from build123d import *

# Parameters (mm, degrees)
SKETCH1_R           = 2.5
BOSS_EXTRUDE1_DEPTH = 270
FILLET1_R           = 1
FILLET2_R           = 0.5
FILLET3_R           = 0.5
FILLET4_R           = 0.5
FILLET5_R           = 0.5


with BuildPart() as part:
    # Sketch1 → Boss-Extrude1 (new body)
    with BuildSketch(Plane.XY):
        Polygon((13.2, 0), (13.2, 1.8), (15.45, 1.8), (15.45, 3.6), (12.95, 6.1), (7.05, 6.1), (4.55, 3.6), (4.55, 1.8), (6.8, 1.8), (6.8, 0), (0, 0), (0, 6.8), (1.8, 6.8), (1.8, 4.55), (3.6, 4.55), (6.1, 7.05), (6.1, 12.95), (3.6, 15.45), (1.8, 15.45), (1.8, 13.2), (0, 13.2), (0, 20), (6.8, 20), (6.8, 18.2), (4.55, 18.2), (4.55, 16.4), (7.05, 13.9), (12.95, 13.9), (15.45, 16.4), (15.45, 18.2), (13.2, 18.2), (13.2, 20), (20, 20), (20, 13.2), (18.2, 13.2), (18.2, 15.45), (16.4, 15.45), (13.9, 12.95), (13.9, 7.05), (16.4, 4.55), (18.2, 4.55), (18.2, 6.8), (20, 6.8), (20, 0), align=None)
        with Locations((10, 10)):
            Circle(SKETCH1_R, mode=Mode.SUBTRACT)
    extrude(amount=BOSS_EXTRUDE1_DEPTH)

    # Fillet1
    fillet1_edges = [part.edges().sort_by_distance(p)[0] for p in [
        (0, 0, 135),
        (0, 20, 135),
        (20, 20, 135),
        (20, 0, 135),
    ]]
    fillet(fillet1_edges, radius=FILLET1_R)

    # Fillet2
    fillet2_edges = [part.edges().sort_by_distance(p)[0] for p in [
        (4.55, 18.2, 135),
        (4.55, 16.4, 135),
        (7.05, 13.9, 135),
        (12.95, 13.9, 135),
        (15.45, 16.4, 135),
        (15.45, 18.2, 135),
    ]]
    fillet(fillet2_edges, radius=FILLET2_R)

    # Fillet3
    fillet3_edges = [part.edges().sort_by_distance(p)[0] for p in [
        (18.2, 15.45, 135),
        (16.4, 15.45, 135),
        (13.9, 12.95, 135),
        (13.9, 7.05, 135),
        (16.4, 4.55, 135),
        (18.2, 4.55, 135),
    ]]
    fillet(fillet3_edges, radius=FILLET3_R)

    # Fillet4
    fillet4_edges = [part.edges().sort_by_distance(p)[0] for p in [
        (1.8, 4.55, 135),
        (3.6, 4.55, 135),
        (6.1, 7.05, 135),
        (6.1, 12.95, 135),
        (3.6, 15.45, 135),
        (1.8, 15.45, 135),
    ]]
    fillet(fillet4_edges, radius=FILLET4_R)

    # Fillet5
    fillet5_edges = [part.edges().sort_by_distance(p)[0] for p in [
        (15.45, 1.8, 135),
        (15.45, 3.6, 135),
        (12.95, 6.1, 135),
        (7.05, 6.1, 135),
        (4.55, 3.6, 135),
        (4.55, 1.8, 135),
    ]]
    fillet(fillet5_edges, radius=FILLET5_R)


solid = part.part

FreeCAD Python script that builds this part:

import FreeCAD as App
import Part
import Sketcher
from FreeCAD import Vector
Q = App.Units.Quantity


def edges_at(feature, points):
    """Names of the edges that pass closest to the given points."""
    edges = feature.Shape.Edges
    near = lambda p: min(range(len(edges)), key=lambda i: edges[i].distToShape(Part.Vertex(*p))[0])
    return sorted({f"Edge{near(p) + 1}" for p in points})

doc = App.newDocument("Part")
params = doc.addObject("Spreadsheet::Sheet", "Params")
for row, (alias, value) in enumerate([
    ("sketch1_diameter", "5 mm"),
    ("sketch1_width", "6.8 mm"),
    ("sketch1_width2", "1.8 mm"),
    ("sketch1_width3", "5.9 mm"),
    ("sketch1_width4", "2.25 mm"),
    ("pad1_length", "270 mm"),
    ("fillet_radius", "1 mm"),
    ("fillet2_radius", "0.5 mm"),
    ("fillet3_radius", "0.5 mm"),
    ("fillet4_radius", "0.5 mm"),
    ("fillet5_radius", "0.5 mm"),
], start=1):
    params.set(f"A{row}", alias)
    params.set(f"B{row}", "=" + value)
    params.setAlias(f"B{row}", alias)

body = doc.addObject("PartDesign::Body", "Body")

# Sketch on XY plane
sketch1 = body.newObject("Sketcher::SketchObject", "Sketch")
sketch1.AttachmentSupport = (doc.getObject("XY_Plane"), [""])
sketch1.MapMode = "FlatFace"
sketch1.addGeometry(Part.LineSegment(Vector(13.2, 1.8, 0), Vector(13.2, 0, 0)), False)
sketch1.addGeometry(Part.LineSegment(Vector(13.2, 0, 0), Vector(20, 0, 0)), False)
sketch1.addGeometry(Part.LineSegment(Vector(20, 0, 0), Vector(20, 6.8, 0)), False)
sketch1.addGeometry(Part.LineSegment(Vector(20, 6.8, 0), Vector(18.2, 6.8, 0)), False)
sketch1.addGeometry(Part.LineSegment(Vector(18.2, 6.8, 0), Vector(18.2, 4.55, 0)), False)
sketch1.addGeometry(Part.LineSegment(Vector(18.2, 4.55, 0), Vector(16.4, 4.55, 0)), False)
sketch1.addGeometry(Part.LineSegment(Vector(16.4, 4.55, 0), Vector(13.9, 7.05, 0)), False)
sketch1.addGeometry(Part.LineSegment(Vector(13.9, 7.05, 0), Vector(13.9, 12.95, 0)), False)
sketch1.addGeometry(Part.LineSegment(Vector(13.9, 12.95, 0), Vector(16.4, 15.45, 0)), False)
sketch1.addGeometry(Part.LineSegment(Vector(16.4, 15.45, 0), Vector(18.2, 15.45, 0)), False)
sketch1.addGeometry(Part.LineSegment(Vector(18.2, 15.45, 0), Vector(18.2, 13.2, 0)), False)
sketch1.addGeometry(Part.LineSegment(Vector(18.2, 13.2, 0), Vector(20, 13.2, 0)), False)
sketch1.addGeometry(Part.LineSegment(Vector(20, 13.2, 0), Vector(20, 20, 0)), False)
sketch1.addGeometry(Part.LineSegment(Vector(20, 20, 0), Vector(13.2, 20, 0)), False)
sketch1.addGeometry(Part.LineSegment(Vector(13.2, 20, 0), Vector(13.2, 18.2, 0)), False)
sketch1.addGeometry(Part.LineSegment(Vector(13.2, 18.2, 0), Vector(15.45, 18.2, 0)), False)
sketch1.addGeometry(Part.LineSegment(Vector(15.45, 18.2, 0), Vector(15.45, 16.4, 0)), False)
sketch1.addGeometry(Part.LineSegment(Vector(15.45, 16.4, 0), Vector(12.95, 13.9, 0)), False)
sketch1.addGeometry(Part.LineSegment(Vector(12.95, 13.9, 0), Vector(7.05, 13.9, 0)), False)
sketch1.addGeometry(Part.LineSegment(Vector(7.05, 13.9, 0), Vector(4.55, 16.4, 0)), False)
sketch1.addGeometry(Part.LineSegment(Vector(4.55, 16.4, 0), Vector(4.55, 18.2, 0)), False)
sketch1.addGeometry(Part.LineSegment(Vector(4.55, 18.2, 0), Vector(6.8, 18.2, 0)), False)
sketch1.addGeometry(Part.LineSegment(Vector(6.8, 18.2, 0), Vector(6.8, 20, 0)), False)
sketch1.addGeometry(Part.LineSegment(Vector(6.8, 20, 0), Vector(0, 20, 0)), False)
sketch1.addGeometry(Part.LineSegment(Vector(0, 20, 0), Vector(0, 13.2, 0)), False)
sketch1.addGeometry(Part.LineSegment(Vector(0, 13.2, 0), Vector(1.8, 13.2, 0)), False)
sketch1.addGeometry(Part.LineSegment(Vector(1.8, 13.2, 0), Vector(1.8, 15.45, 0)), False)
sketch1.addGeometry(Part.LineSegment(Vector(1.8, 15.45, 0), Vector(3.6, 15.45, 0)), False)
sketch1.addGeometry(Part.LineSegment(Vector(3.6, 15.45, 0), Vector(6.1, 12.95, 0)), False)
sketch1.addGeometry(Part.LineSegment(Vector(6.1, 12.95, 0), Vector(6.1, 7.05, 0)), False)
sketch1.addGeometry(Part.LineSegment(Vector(6.1, 7.05, 0), Vector(3.6, 4.55, 0)), False)
sketch1.addGeometry(Part.LineSegment(Vector(3.6, 4.55, 0), Vector(1.8, 4.55, 0)), False)
sketch1.addGeometry(Part.LineSegment(Vector(1.8, 4.55, 0), Vector(1.8, 6.8, 0)), False)
sketch1.addGeometry(Part.LineSegment(Vector(1.8, 6.8, 0), Vector(0, 6.8, 0)), False)
sketch1.addGeometry(Part.LineSegment(Vector(0, 6.8, 0), Vector(0, 0, 0)), False)
sketch1.addGeometry(Part.LineSegment(Vector(0, 0, 0), Vector(6.8, 0, 0)), False)
sketch1.addGeometry(Part.LineSegment(Vector(6.8, 0, 0), Vector(6.8, 1.8, 0)), False)
sketch1.addGeometry(Part.LineSegment(Vector(6.8, 1.8, 0), Vector(4.55, 1.8, 0)), False)
sketch1.addGeometry(Part.LineSegment(Vector(4.55, 1.8, 0), Vector(4.55, 3.6, 0)), False)
sketch1.addGeometry(Part.LineSegment(Vector(4.55, 3.6, 0), Vector(7.05, 6.1, 0)), False)
sketch1.addGeometry(Part.LineSegment(Vector(7.05, 6.1, 0), Vector(12.95, 6.1, 0)), False)
sketch1.addGeometry(Part.LineSegment(Vector(12.95, 6.1, 0), Vector(15.45, 3.6, 0)), False)
sketch1.addGeometry(Part.LineSegment(Vector(15.45, 3.6, 0), Vector(15.45, 1.8, 0)), False)
sketch1.addGeometry(Part.LineSegment(Vector(15.45, 1.8, 0), Vector(13.2, 1.8, 0)), False)
sketch1.addGeometry(Part.Circle(Vector(10, 10, 0), Vector(0, 0, 1), 2.5), False)
sketch1.addConstraint(Sketcher.Constraint("Coincident", 0, 2, 1, 1))
sketch1.addConstraint(Sketcher.Constraint("Coincident", 1, 2, 2, 1))
sketch1.addConstraint(Sketcher.Constraint("Coincident", 2, 2, 3, 1))
sketch1.addConstraint(Sketcher.Constraint("Coincident", 3, 2, 4, 1))
sketch1.addConstraint(Sketcher.Constraint("Coincident", 4, 2, 5, 1))
sketch1.addConstraint(Sketcher.Constraint("Coincident", 5, 2, 6, 1))
sketch1.addConstraint(Sketcher.Constraint("Coincident", 6, 2, 7, 1))
sketch1.addConstraint(Sketcher.Constraint("Coincident", 7, 2, 8, 1))
sketch1.addConstraint(Sketcher.Constraint("Coincident", 8, 2, 9, 1))
sketch1.addConstraint(Sketcher.Constraint("Coincident", 9, 2, 10, 1))
sketch1.addConstraint(Sketcher.Constraint("Coincident", 10, 2, 11, 1))
sketch1.addConstraint(Sketcher.Constraint("Coincident", 11, 2, 12, 1))
sketch1.addConstraint(Sketcher.Constraint("Coincident", 12, 2, 13, 1))
sketch1.addConstraint(Sketcher.Constraint("Coincident", 13, 2, 14, 1))
sketch1.addConstraint(Sketcher.Constraint("Coincident", 14, 2, 15, 1))
sketch1.addConstraint(Sketcher.Constraint("Coincident", 15, 2, 16, 1))
sketch1.addConstraint(Sketcher.Constraint("Coincident", 16, 2, 17, 1))
sketch1.addConstraint(Sketcher.Constraint("Coincident", 17, 2, 18, 1))
sketch1.addConstraint(Sketcher.Constraint("Coincident", 18, 2, 19, 1))
sketch1.addConstraint(Sketcher.Constraint("Coincident", 19, 2, 20, 1))
sketch1.addConstraint(Sketcher.Constraint("Coincident", 20, 2, 21, 1))
sketch1.addConstraint(Sketcher.Constraint("Coincident", 21, 2, 22, 1))
sketch1.addConstraint(Sketcher.Constraint("Coincident", 22, 2, 23, 1))
sketch1.addConstraint(Sketcher.Constraint("Coincident", 23, 2, 24, 1))
sketch1.addConstraint(Sketcher.Constraint("Coincident", 24, 2, 25, 1))
sketch1.addConstraint(Sketcher.Constraint("Coincident", 25, 2, 26, 1))
sketch1.addConstraint(Sketcher.Constraint("Coincident", 26, 2, 27, 1))
sketch1.addConstraint(Sketcher.Constraint("Coincident", 27, 2, 28, 1))
sketch1.addConstraint(Sketcher.Constraint("Coincident", 28, 2, 29, 1))
sketch1.addConstraint(Sketcher.Constraint("Coincident", 29, 2, 30, 1))
sketch1.addConstraint(Sketcher.Constraint("Coincident", 30, 2, 31, 1))
sketch1.addConstraint(Sketcher.Constraint("Coincident", 31, 2, 32, 1))
sketch1.addConstraint(Sketcher.Constraint("Coincident", 32, 2, 33, 1))
sketch1.addConstraint(Sketcher.Constraint("Coincident", 33, 2, 34, 1))
sketch1.addConstraint(Sketcher.Constraint("Coincident", 34, 2, 35, 1))
sketch1.addConstraint(Sketcher.Constraint("Coincident", 35, 2, 36, 1))
sketch1.addConstraint(Sketcher.Constraint("Coincident", 36, 2, 37, 1))
sketch1.addConstraint(Sketcher.Constraint("Coincident", 37, 2, 38, 1))
sketch1.addConstraint(Sketcher.Constraint("Coincident", 38, 2, 39, 1))
sketch1.addConstraint(Sketcher.Constraint("Coincident", 39, 2, 40, 1))
sketch1.addConstraint(Sketcher.Constraint("Coincident", 40, 2, 41, 1))
sketch1.addConstraint(Sketcher.Constraint("Coincident", 41, 2, 42, 1))
sketch1.addConstraint(Sketcher.Constraint("Coincident", 42, 2, 43, 1))
sketch1.addConstraint(Sketcher.Constraint("Coincident", 43, 2, 0, 1))
sketch1.addConstraint(Sketcher.Constraint("Vertical", 0))
sketch1.addConstraint(Sketcher.Constraint("Horizontal", 1))
sketch1.addConstraint(Sketcher.Constraint("Vertical", 2))
sketch1.addConstraint(Sketcher.Constraint("Horizontal", 3))
sketch1.addConstraint(Sketcher.Constraint("Vertical", 4))
sketch1.addConstraint(Sketcher.Constraint("Horizontal", 5))
sketch1.addConstraint(Sketcher.Constraint("Vertical", 7))
sketch1.addConstraint(Sketcher.Constraint("Horizontal", 9))
sketch1.addConstraint(Sketcher.Constraint("Vertical", 10))
sketch1.addConstraint(Sketcher.Constraint("Horizontal", 11))
sketch1.addConstraint(Sketcher.Constraint("Vertical", 12))
sketch1.addConstraint(Sketcher.Constraint("Horizontal", 13))
sketch1.addConstraint(Sketcher.Constraint("Vertical", 14))
sketch1.addConstraint(Sketcher.Constraint("Horizontal", 15))
sketch1.addConstraint(Sketcher.Constraint("Vertical", 16))
sketch1.addConstraint(Sketcher.Constraint("Horizontal", 18))
sketch1.addConstraint(Sketcher.Constraint("Vertical", 20))
sketch1.addConstraint(Sketcher.Constraint("Horizontal", 21))
sketch1.addConstraint(Sketcher.Constraint("Vertical", 22))
sketch1.addConstraint(Sketcher.Constraint("Horizontal", 23))
sketch1.addConstraint(Sketcher.Constraint("Vertical", 24))
sketch1.addConstraint(Sketcher.Constraint("Horizontal", 25))
sketch1.addConstraint(Sketcher.Constraint("Vertical", 26))
sketch1.addConstraint(Sketcher.Constraint("Horizontal", 27))
sketch1.addConstraint(Sketcher.Constraint("Vertical", 29))
sketch1.addConstraint(Sketcher.Constraint("Horizontal", 31))
sketch1.addConstraint(Sketcher.Constraint("Vertical", 32))
sketch1.addConstraint(Sketcher.Constraint("Horizontal", 33))
sketch1.addConstraint(Sketcher.Constraint("Vertical", 34))
sketch1.addConstraint(Sketcher.Constraint("Horizontal", 35))
sketch1.addConstraint(Sketcher.Constraint("Vertical", 36))
sketch1.addConstraint(Sketcher.Constraint("Horizontal", 37))
sketch1.addConstraint(Sketcher.Constraint("Vertical", 38))
sketch1.addConstraint(Sketcher.Constraint("Horizontal", 40))
sketch1.addConstraint(Sketcher.Constraint("Vertical", 42))
sketch1.addConstraint(Sketcher.Constraint("Horizontal", 43))
sketch1.addConstraint(Sketcher.Constraint("Coincident", 34, 2, -1, 1))
sketch1.addConstraint(Sketcher.Constraint("PointOnObject", 0, 2, -1))
sketch1.addConstraint(Sketcher.Constraint("PointOnObject", 23, 2, -2))
sketch1.addConstraint(Sketcher.Constraint("Perpendicular", 6, 8))
sketch1.addConstraint(Sketcher.Constraint("Parallel", 8, 17))
sketch1.addConstraint(Sketcher.Constraint("Perpendicular", 17, 19))
sketch1.addConstraint(Sketcher.Constraint("Parallel", 19, 28))
sketch1.addConstraint(Sketcher.Constraint("Perpendicular", 28, 30))
sketch1.addConstraint(Sketcher.Constraint("Parallel", 30, 39))
sketch1.addConstraint(Sketcher.Constraint("Perpendicular", 39, 41))
sketch1.addConstraint(Sketcher.Constraint("Horizontal", 16, 2, 19, 2))
sketch1.addConstraint(Sketcher.Constraint("Horizontal", 15, 2, 20, 2))
sketch1.addConstraint(Sketcher.Constraint("Horizontal", 13, 2, 22, 2))
sketch1.addConstraint(Sketcher.Constraint("Horizontal", 11, 2, 24, 2))
sketch1.addConstraint(Sketcher.Constraint("Horizontal", 9, 2, 26, 2))
sketch1.addConstraint(Sketcher.Constraint("Horizontal", 7, 2, 28, 2))
sketch1.addConstraint(Sketcher.Constraint("Horizontal", 6, 2, 29, 2))
sketch1.addConstraint(Sketcher.Constraint("Horizontal", 5, 2, 30, 2))
sketch1.addConstraint(Sketcher.Constraint("Horizontal", 3, 2, 32, 2))
sketch1.addConstraint(Sketcher.Constraint("Horizontal", 38, 2, 41, 2))
sketch1.addConstraint(Sketcher.Constraint("Horizontal", 37, 2, 42, 2))
sketch1.addConstraint(Sketcher.Constraint("Vertical", 5, 2, 8, 2))
sketch1.addConstraint(Sketcher.Constraint("Vertical", 4, 2, 9, 2))
sketch1.addConstraint(Sketcher.Constraint("Vertical", 2, 2, 11, 2))
sketch1.addConstraint(Sketcher.Constraint("Vertical", 0, 2, 13, 2))
sketch1.addConstraint(Sketcher.Constraint("Vertical", 27, 2, 30, 2))
sketch1.addConstraint(Sketcher.Constraint("Vertical", 26, 2, 31, 2))
sketch1.addConstraint(Sketcher.Constraint("Vertical", 22, 2, 35, 2))
sketch1.addConstraint(Sketcher.Constraint("Vertical", 20, 2, 37, 2))
sketch1.addConstraint(Sketcher.Constraint("Vertical", 18, 2, 39, 2))
sketch1.addConstraint(Sketcher.Constraint("Vertical", 17, 2, 40, 2))
sketch1.addConstraint(Sketcher.Constraint("Equal", 3, 5))
sketch1.addConstraint(Sketcher.Constraint("Equal", 15, 21))
sketch1.addConstraint(Sketcher.Constraint("Equal", 13, 23))
sketch1.addConstraint(Sketcher.Constraint("Equal", 11, 25))
sketch1.addConstraint(Sketcher.Constraint("Equal", 25, 27))
sketch1.addConstraint(Sketcher.Constraint("Equal", 33, 0))
sketch1.addConstraint(Sketcher.Constraint("Equal", 35, 2))
sketch1.addConstraint(Sketcher.Constraint("Equal", 43, 4))
sketch1.addConstraint(Sketcher.Constraint("Equal", 40, 7))
sketch1.addConstraint(Sketcher.Constraint("Equal", 4, 10))
sketch1.addConstraint(Sketcher.Constraint("Equal", 2, 12))
sketch1.addConstraint(Sketcher.Constraint("Equal", 0, 14))
sketch1.addConstraint(Sketcher.Constraint("Equal", 14, 16))
sketch1.addConstraint(Sketcher.Constraint("Equal", 36, 38))
sketch1.addConstraint(Sketcher.Constraint("Equal", 8, 17))
sketch1.addConstraint(Sketcher.Constraint("Diameter", 44, Q("5 mm")))
sketch1.addConstraint(Sketcher.Constraint("DistanceX", 1, 1, 1, 2, Q("6.8 mm")))
sketch1.addConstraint(Sketcher.Constraint("DistanceX", 3, 2, 3, 1, Q("1.8 mm")))
sketch1.addConstraint(Sketcher.Constraint("DistanceX", 18, 2, 18, 1, Q("5.9 mm")))
sketch1.addConstraint(Sketcher.Constraint("DistanceX", -1, 1, 44, 3, Q("10 mm")))
sketch1.addConstraint(Sketcher.Constraint("DistanceY", -1, 1, 44, 3, Q("10 mm")))
sketch1.addConstraint(Sketcher.Constraint("DistanceX", -1, 1, 1, 2, Q("20 mm")))
sketch1.addConstraint(Sketcher.Constraint("DistanceX", 15, 1, 15, 2, Q("2.25 mm")))
sketch1.setExpression("Constraints[126]", "Params.sketch1_diameter")
sketch1.setExpression("Constraints[127]", "Params.sketch1_width")
sketch1.setExpression("Constraints[128]", "Params.sketch1_width2")
sketch1.setExpression("Constraints[129]", "Params.sketch1_width3")
sketch1.setExpression("Constraints[133]", "Params.sketch1_width4")
pad1 = body.newObject("PartDesign::Pad", "Pad")
pad1.Profile = sketch1
pad1.setExpression("Length", "Params.pad1_length")
doc.recompute()

fillet = body.newObject("PartDesign::Fillet", "Fillet")
fillet.Base = (pad1, edges_at(pad1, [
    (0, 0, 135),
    (0, 20, 135),
    (20, 20, 135),
    (20, 0, 135),
]))
fillet.setExpression("Radius", "Params.fillet_radius")
doc.recompute()

fillet2 = body.newObject("PartDesign::Fillet", "Fillet001")
fillet2.Base = (fillet, edges_at(fillet, [
    (4.55, 18.2, 135),
    (4.55, 16.4, 135),
    (7.05, 13.9, 135),
    (12.95, 13.9, 135),
    (15.45, 16.4, 135),
    (15.45, 18.2, 135),
]))
fillet2.setExpression("Radius", "Params.fillet2_radius")
doc.recompute()

fillet3 = body.newObject("PartDesign::Fillet", "Fillet002")
fillet3.Base = (fillet2, edges_at(fillet2, [
    (18.2, 15.45, 135),
    (16.4, 15.45, 135),
    (13.9, 12.95, 135),
    (13.9, 7.05, 135),
    (16.4, 4.55, 135),
    (18.2, 4.55, 135),
]))
fillet3.setExpression("Radius", "Params.fillet3_radius")
doc.recompute()

fillet4 = body.newObject("PartDesign::Fillet", "Fillet003")
fillet4.Base = (fillet3, edges_at(fillet3, [
    (1.8, 4.55, 135),
    (3.6, 4.55, 135),
    (6.1, 7.05, 135),
    (6.1, 12.95, 135),
    (3.6, 15.45, 135),
    (1.8, 15.45, 135),
]))
fillet4.setExpression("Radius", "Params.fillet4_radius")
doc.recompute()

fillet5 = body.newObject("PartDesign::Fillet", "Fillet004")
fillet5.Base = (fillet4, edges_at(fillet4, [
    (15.45, 1.8, 135),
    (15.45, 3.6, 135),
    (12.95, 6.1, 135),
    (7.05, 6.1, 135),
    (4.55, 3.6, 135),
    (4.55, 1.8, 135),
]))
fillet5.setExpression("Radius", "Params.fillet5_radius")

doc.recompute()
